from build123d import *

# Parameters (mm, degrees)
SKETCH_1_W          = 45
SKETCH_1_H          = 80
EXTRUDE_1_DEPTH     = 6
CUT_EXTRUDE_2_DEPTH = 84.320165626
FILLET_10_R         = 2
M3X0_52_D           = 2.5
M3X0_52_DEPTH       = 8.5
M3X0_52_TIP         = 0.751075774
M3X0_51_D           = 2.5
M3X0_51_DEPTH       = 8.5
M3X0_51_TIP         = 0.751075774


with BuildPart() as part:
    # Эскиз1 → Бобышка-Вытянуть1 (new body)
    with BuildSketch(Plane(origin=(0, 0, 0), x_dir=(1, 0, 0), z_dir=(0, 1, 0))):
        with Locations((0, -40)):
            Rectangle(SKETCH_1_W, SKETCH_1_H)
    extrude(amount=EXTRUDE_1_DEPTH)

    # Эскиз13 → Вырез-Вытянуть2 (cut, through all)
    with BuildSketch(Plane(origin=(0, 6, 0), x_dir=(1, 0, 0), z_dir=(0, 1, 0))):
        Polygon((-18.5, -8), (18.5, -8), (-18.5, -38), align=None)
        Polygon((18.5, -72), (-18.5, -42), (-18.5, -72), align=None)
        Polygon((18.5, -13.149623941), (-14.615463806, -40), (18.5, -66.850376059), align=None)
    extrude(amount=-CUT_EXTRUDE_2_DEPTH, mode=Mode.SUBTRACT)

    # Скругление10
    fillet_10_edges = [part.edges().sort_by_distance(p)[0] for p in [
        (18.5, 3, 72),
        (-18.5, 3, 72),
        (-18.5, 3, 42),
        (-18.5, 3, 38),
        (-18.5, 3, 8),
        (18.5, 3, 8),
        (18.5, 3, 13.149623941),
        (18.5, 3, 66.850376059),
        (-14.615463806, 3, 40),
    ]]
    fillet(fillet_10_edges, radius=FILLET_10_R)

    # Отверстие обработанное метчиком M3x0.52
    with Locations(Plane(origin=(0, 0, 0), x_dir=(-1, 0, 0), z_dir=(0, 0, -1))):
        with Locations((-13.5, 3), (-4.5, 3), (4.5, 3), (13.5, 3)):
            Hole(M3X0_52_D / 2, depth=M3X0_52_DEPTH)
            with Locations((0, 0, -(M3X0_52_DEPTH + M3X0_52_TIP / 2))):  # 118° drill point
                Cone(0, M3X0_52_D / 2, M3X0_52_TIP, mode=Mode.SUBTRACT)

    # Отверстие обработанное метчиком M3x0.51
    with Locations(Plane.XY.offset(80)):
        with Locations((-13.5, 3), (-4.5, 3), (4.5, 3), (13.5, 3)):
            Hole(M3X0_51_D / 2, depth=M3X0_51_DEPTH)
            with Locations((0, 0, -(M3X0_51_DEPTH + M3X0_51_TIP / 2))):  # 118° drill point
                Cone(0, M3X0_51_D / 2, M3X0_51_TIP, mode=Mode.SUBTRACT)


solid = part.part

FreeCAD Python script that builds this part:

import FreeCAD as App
import Part
import Sketcher

V = App.Vector


def edges_at(feature, points):
    """Names of the edges that pass closest to the given points."""
    edges = feature.Shape.Edges
    near = lambda p: min(range(len(edges)), key=lambda i: edges[i].distToShape(Part.Vertex(*p))[0])
    return sorted({f"Edge{near(p) + 1}" for p in points})

doc = App.newDocument("Part")
body = doc.addObject("PartDesign::Body", "Body")

# Sketch on XZ plane
sketch1 = body.newObject("Sketcher::SketchObject", "Sketch")
sketch1.AttachmentSupport = (doc.getObject("XZ_Plane"), [""])
sketch1.MapMode = "FlatFace"
sketch1.addGeometry(Part.LineSegment(V(-22, 0, 0), V(-22, 80, 0)), False)
sketch1.addGeometry(Part.LineSegment(V(-22, 80, 0), V(22, 80, 0)), False)
sketch1.addGeometry(Part.LineSegment(V(22, 80, 0), V(22, 0, 0)), False)
sketch1.addGeometry(Part.LineSegment(V(22, 0, 0), V(-22, 0, 0)), False)
sketch1.addConstraint(Sketcher.Constraint("Coincident", 0, 2, 1, 1))
sketch1.addConstraint(Sketcher.Constraint("Coincident", 1, 2, 2, 1))
sketch1.addConstraint(Sketcher.Constraint("Coincident", 2, 2, 3, 1))
sketch1.addConstraint(Sketcher.Constraint("Coincident", 3, 2, 0, 1))
sketch1.addConstraint(Sketcher.Constraint("Vertical", 0))
sketch1.addConstraint(Sketcher.Constraint("Horizontal", 1))
sketch1.addConstraint(Sketcher.Constraint("Vertical", 2))
sketch1.addConstraint(Sketcher.Constraint("Horizontal", 3))
sketch1.addConstraint(Sketcher.Constraint("Symmetric", 2, 2, 3, 2, -1, 1))
sketch1.addConstraint(Sketcher.Constraint("DistanceX", 1, 1, 1, 2, 45.0))
sketch1.addConstraint(Sketcher.Constraint("DistanceY", 0, 1, 0, 2, 80.0))
pad1 = body.newObject("PartDesign::Pad", "Pad")
pad1.Profile = sketch1
pad1.Length = 6
pad1.Reversed = True

# Sketch on XZ plane
sketch2 = body.newObject("Sketcher::SketchObject", "Sketch001")
sketch2.AttachmentSupport = (doc.getObject("XZ_Plane"), [""])
sketch2.MapMode = "FlatFace"
sketch2.AttachmentOffset = App.Placement(V(0, 0, -6), App.Rotation())
sketch2.addGeometry(Part.LineSegment(V(18, 8, 0), V(-18, 8, 0)), False)
sketch2.addGeometry(Part.LineSegment(V(-18, 8, 0), V(-18, 38, 0)), False)
sketch2.addGeometry(Part.LineSegment(V(-18, 38, 0), V(18, 8, 0)), False)
sketch2.addGeometry(Part.LineSegment(V(18, 72, 0), V(-18, 42, 0)), False)
sketch2.addGeometry(Part.LineSegment(V(-18, 42, 0), V(-18, 72, 0)), False)
sketch2.addGeometry(Part.LineSegment(V(-18, 72, 0), V(18, 72, 0)), False)
sketch2.addGeometry(Part.LineSegment(V(18, 13, 0), V(-15, 40, 0)), False)
sketch2.addGeometry(Part.LineSegment(V(-15, 40, 0), V(18, 67, 0)), False)
sketch2.addGeometry(Part.LineSegment(V(18, 67, 0), V(18, 13, 0)), False)
sketch2.addConstraint(Sketcher.Constraint("Coincident", 0, 2, 1, 1))
sketch2.addConstraint(Sketcher.Constraint("Coincident", 1, 2, 2, 1))
sketch2.addConstraint(Sketcher.Constraint("Coincident", 2, 2, 0, 1))
sketch2.addConstraint(Sketcher.Constraint("Coincident", 3, 2, 4, 1))
sketch2.addConstraint(Sketcher.Constraint("Coincident", 4, 2, 5, 1))
sketch2.addConstraint(Sketcher.Constraint("Coincident", 5, 2, 3, 1))
sketch2.addConstraint(Sketcher.Constraint("Coincident", 6, 2, 7, 1))
sketch2.addConstraint(Sketcher.Constraint("Coincident", 7, 2, 8, 1))
sketch2.addConstraint(Sketcher.Constraint("Coincident", 8, 2, 6, 1))
sketch2.addConstraint(Sketcher.Constraint("Horizontal", 0))
sketch2.addConstraint(Sketcher.Constraint("Vertical", 1))
sketch2.addConstraint(Sketcher.Constraint("Vertical", 4))
sketch2.addConstraint(Sketcher.Constraint("Horizontal", 5))
sketch2.addConstraint(Sketcher.Constraint("Vertical", 8))
sketch2.addConstraint(Sketcher.Constraint("Parallel", 2, 6))
sketch2.addConstraint(Sketcher.Constraint("Parallel", 3, 7))
sketch2.addConstraint(Sketcher.Constraint("Vertical", 1, 2, 3, 2))
sketch2.addConstraint(Sketcher.Constraint("Vertical", 2, 2, 5, 2))
sketch2.addConstraint(Sketcher.Constraint("Vertical", 5, 2, 7, 2))
sketch2.addConstraint(Sketcher.Constraint("Equal", 1, 4))
sketch2.addConstraint(Sketcher.Constraint("DistanceX", 0, 2, 0, 1, 37.0))
sketch2.addConstraint(Sketcher.Constraint("DistanceY", 1, 1, 1, 2, 30.0))
sketch2.addConstraint(Sketcher.Constraint("DistanceY", -1, 1, 0, 2, 8.0))
sketch2.addConstraint(Sketcher.Constraint("DistanceY", -1, 1, 3, 2, 42.0))
sketch2.addConstraint(Sketcher.Constraint("DistanceY", -1, 1, 6, 2, 40.0))
sketch2.addConstraint(Sketcher.Constraint("DistanceX", 0, 2, -1, 1, 18.5))
sketch2.addConstraint(Sketcher.Constraint("DistanceY", 8, 2, 8, 1, 53.700752))
pocket1 = body.newObject("PartDesign::Pocket", "Pocket")
pocket1.Profile = sketch2
pocket1.Type = "ThroughAll"
pocket1.Reversed = True
doc.recompute()

fillet = body.newObject("PartDesign::Fillet", "Fillet")
fillet.Base = (pocket1, edges_at(pocket1, [
    (18.5, 3, 72),
    (-18.5, 3, 72),
    (-18.5, 3, 42),
    (-18.5, 3, 38),
    (-18.5, 3, 8),
    (18.5, 3, 8),
    (18.5, 3, 13.15),
    (18.5, 3, 66.85),
    (-14.615, 3, 40),
]))
fillet.Radius = 2

# Sketch on XY plane
sketch3 = body.newObject("Sketcher::SketchObject", "Sketch002")
sketch3.AttachmentSupport = (doc.getObject("XY_Plane"), [""])
sketch3.MapMode = "FlatFace"
sketch3.addGeometry(Part.Circle(V(13.5, 3, 0), V(0, 0, 1), 1.2), False)
sketch3.addGeometry(Part.Circle(V(4.5, 3, 0), V(0, 0, 1), 1.2), False)
sketch3.addGeometry(Part.Circle(V(-4.5, 3, 0), V(0, 0, 1), 1.2), False)
sketch3.addGeometry(Part.Circle(V(-13.5, 3, 0), V(0, 0, 1), 1.2), False)
sketch3.addConstraint(Sketcher.Constraint("Equal", 0, 1))
sketch3.addConstraint(Sketcher.Constraint("Equal", 1, 2))
sketch3.addConstraint(Sketcher.Constraint("Equal", 2, 3))
sketch3.addConstraint(Sketcher.Constraint("Symmetric", 1, 3, 2, 3, -2))
sketch3.addConstraint(Sketcher.Constraint("Symmetric", 0, 3, 3, 3, -2))
sketch3.addConstraint(Sketcher.Constraint("Horizontal", 0, 3, 1, 3))
sketch3.addConstraint(Sketcher.Constraint("Diameter", 0, 2.5))
sketch3.addConstraint(Sketcher.Constraint("DistanceY", -1, 1, 0, 3, 3.0))
sketch3.addConstraint(Sketcher.Constraint("DistanceX", 1, 3, 0, 3, 9.0))
sketch3.addConstraint(Sketcher.Constraint("DistanceX", 2, 3, 1, 3, 9.0))
doc.recompute()
hole = body.newObject("PartDesign::Hole", "Hole")
hole.Profile = sketch3
hole.ThreadType = "None"
hole.Diameter = 2.5
hole.DepthType = "Dimension"
hole.Depth = 8.5
hole.DrillPoint = "Angled"
hole.DrillPointAngle = 118
hole.Reversed = True

# Sketch on XY plane
sketch4 = body.newObject("Sketcher::SketchObject", "Sketch003")
sketch4.AttachmentSupport = (doc.getObject("XY_Plane"), [""])
sketch4.MapMode = "FlatFace"
sketch4.AttachmentOffset = App.Placement(V(0, 0, 80), App.Rotation())
sketch4.addGeometry(Part.Circle(V(-13.5, 3, 0), V(0, 0, 1), 1.2), False)
sketch4.addGeometry(Part.Circle(V(-4.5, 3, 0), V(0, 0, 1), 1.2), False)
sketch4.addGeometry(Part.Circle(V(4.5, 3, 0), V(0, 0, 1), 1.2), False)
sketch4.addGeometry(Part.Circle(V(13.5, 3, 0), V(0, 0, 1), 1.2), False)
sketch4.addConstraint(Sketcher.Constraint("Equal", 0, 1))
sketch4.addConstraint(Sketcher.Constraint("Equal", 1, 2))
sketch4.addConstraint(Sketcher.Constraint("Equal", 2, 3))
sketch4.addConstraint(Sketcher.Constraint("Symmetric", 1, 3, 2, 3, -2))
sketch4.addConstraint(Sketcher.Constraint("Symmetric", 0, 3, 3, 3, -2))
sketch4.addConstraint(Sketcher.Constraint("Horizontal", 0, 3, 1, 3))
sketch4.addConstraint(Sketcher.Constraint("Diameter", 0, 2.5))
sketch4.addConstraint(Sketcher.Constraint("DistanceY", -1, 1, 0, 3, 3.0))
sketch4.addConstraint(Sketcher.Constraint("DistanceX", 0, 3, 1, 3, 9.0))
sketch4.addConstraint(Sketcher.Constraint("DistanceX", 1, 3, 2, 3, 9.0))
doc.recompute()
hole2 = body.newObject("PartDesign::Hole", "Hole001")
hole2.Profile = sketch4
hole2.ThreadType = "None"
hole2.Diameter = 2.5
hole2.DepthType = "Dimension"
hole2.Depth = 8.5
hole2.DrillPoint = "Angled"
hole2.DrillPointAngle = 118

doc.recompute()
